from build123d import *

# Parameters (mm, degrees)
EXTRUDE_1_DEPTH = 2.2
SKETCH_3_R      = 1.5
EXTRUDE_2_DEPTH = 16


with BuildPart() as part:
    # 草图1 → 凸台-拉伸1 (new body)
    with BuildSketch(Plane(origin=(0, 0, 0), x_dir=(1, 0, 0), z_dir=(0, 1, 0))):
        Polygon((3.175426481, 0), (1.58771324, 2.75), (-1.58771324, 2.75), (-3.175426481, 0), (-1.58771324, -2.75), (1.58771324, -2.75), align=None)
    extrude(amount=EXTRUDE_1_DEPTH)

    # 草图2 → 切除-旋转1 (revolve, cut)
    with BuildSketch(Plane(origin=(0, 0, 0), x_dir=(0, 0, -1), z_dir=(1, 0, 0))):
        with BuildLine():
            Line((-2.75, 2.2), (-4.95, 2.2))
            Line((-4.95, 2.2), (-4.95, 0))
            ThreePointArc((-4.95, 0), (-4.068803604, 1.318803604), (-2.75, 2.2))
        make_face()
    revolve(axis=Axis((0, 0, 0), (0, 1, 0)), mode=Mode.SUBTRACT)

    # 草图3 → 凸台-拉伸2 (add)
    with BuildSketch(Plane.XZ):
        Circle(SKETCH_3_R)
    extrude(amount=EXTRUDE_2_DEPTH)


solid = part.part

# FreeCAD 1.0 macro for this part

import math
import FreeCAD as App
import Part
import Sketcher

V = App.Vector
Q = App.Units.Quantity


def add_polygon(sketch, points):
    """Adds a closed chain of lines whose ends are joined by coincident constraints."""
    first, n = sketch.GeometryCount, len(points)
    for a, b in zip(points, points[1:] + points[:1]):
        sketch.addGeometry(Part.LineSegment(App.Vector(*a, 0), App.Vector(*b, 0)), False)
    for i in range(n):
        sketch.addConstraint(Sketcher.Constraint("Coincident", first + i, 2, first + (i + 1) % n, 1))

doc = App.newDocument("Part")
body = doc.addObject("PartDesign::Body", "Body")

# Sketch on XZ plane
sketch1 = body.newObject("Sketcher::SketchObject", "Sketch")
sketch1.AttachmentSupport = (doc.getObject("XZ_Plane"), [""])
sketch1.MapMode = "FlatFace"
add_polygon(sketch1, [(3.175426, 0), (1.587713, -2.75), (-1.587713, -2.75), (-3.175426, 0), (-1.587713, 2.75), (1.587713, 2.75)])  # lines 0-5
sketch1.addConstraint([
    Sketcher.Constraint("Horizontal", 1),
    Sketcher.Constraint("Horizontal", 4),
    Sketcher.Constraint("Symmetric", 0, 2, 3, 2, -1, 1),
    Sketcher.Constraint("Symmetric", 2, 2, 5, 2, -1, 1),
    Sketcher.Constraint("PointOnObject", 2, 2, -1),
    Sketcher.Constraint("Parallel", 2, 5),
    Sketcher.Constraint("Vertical", 1, 2, 3, 2),
    Sketcher.Constraint("Angle", 0, Q("-120 deg")),
    Sketcher.Constraint("DistanceY", 1, 2, 3, 2, 5.5),
    Sketcher.Constraint("DistanceX", 1, 2, 1, 1, 3.175426),
])
pad1 = body.newObject("PartDesign::Pad", "Pad")
pad1.Profile = sketch1
pad1.Length = 2.2
pad1.Reversed = True

# Sketch on YZ plane
sketch2 = body.newObject("Sketcher::SketchObject", "Sketch001")
sketch2.AttachmentSupport = (doc.getObject("YZ_Plane"), [""])
sketch2.MapMode = "FlatFace"
sketch2.addGeometry([
    Part.LineSegment(V(2.2, 2.75, 0), V(2.2, 4.95, 0)),
    Part.LineSegment(V(2.2, 4.95, 0), V(0, 4.95, 0)),
    Part.ArcOfCircle(Part.Circle(V(-1.555635, 1.194365, 0), V(0, 0, 1), 4.06507), math.radians(22.5), math.radians(67.5)),
], False)
sketch2.addConstraint([
    Sketcher.Constraint("Coincident", 0, 2, 1, 1),
    Sketcher.Constraint("Coincident", 1, 2, 2, 2),
    Sketcher.Constraint("Coincident", 2, 1, 0, 1),
    Sketcher.Constraint("Vertical", 0),
    Sketcher.Constraint("Horizontal", 1),
    Sketcher.Constraint("PointOnObject", 1, 2, -2),
    Sketcher.Constraint("Equal", 1, 0),
    Sketcher.Constraint("DistanceX", 1, 2, 1, 1, 2.2),
    Sketcher.Constraint("DistanceY", -1, 1, 0, 2, 4.95),
    Sketcher.Constraint("Radius", 2, 4.06507),
])
groove = body.newObject("PartDesign::Groove", "Groove")
groove.Profile = sketch2
groove.ReferenceAxis = (sketch2, ["H_Axis"])
groove.Angle = 360

# Sketch on XZ plane
sketch3 = body.newObject("Sketcher::SketchObject", "Sketch002")
sketch3.AttachmentSupport = (doc.getObject("XZ_Plane"), [""])
sketch3.MapMode = "FlatFace"
sketch3.addGeometry(Part.Circle(V(0, 0, 0), V(0, 0, 1), 1.5), False)
sketch3.addConstraint([
    Sketcher.Constraint("Coincident", 0, 3, -1, 1),
    Sketcher.Constraint("Diameter", 0, 3.0),
])
pad2 = body.newObject("PartDesign::Pad", "Pad001")
pad2.Profile = sketch3
pad2.Length = 16

doc.recompute()
